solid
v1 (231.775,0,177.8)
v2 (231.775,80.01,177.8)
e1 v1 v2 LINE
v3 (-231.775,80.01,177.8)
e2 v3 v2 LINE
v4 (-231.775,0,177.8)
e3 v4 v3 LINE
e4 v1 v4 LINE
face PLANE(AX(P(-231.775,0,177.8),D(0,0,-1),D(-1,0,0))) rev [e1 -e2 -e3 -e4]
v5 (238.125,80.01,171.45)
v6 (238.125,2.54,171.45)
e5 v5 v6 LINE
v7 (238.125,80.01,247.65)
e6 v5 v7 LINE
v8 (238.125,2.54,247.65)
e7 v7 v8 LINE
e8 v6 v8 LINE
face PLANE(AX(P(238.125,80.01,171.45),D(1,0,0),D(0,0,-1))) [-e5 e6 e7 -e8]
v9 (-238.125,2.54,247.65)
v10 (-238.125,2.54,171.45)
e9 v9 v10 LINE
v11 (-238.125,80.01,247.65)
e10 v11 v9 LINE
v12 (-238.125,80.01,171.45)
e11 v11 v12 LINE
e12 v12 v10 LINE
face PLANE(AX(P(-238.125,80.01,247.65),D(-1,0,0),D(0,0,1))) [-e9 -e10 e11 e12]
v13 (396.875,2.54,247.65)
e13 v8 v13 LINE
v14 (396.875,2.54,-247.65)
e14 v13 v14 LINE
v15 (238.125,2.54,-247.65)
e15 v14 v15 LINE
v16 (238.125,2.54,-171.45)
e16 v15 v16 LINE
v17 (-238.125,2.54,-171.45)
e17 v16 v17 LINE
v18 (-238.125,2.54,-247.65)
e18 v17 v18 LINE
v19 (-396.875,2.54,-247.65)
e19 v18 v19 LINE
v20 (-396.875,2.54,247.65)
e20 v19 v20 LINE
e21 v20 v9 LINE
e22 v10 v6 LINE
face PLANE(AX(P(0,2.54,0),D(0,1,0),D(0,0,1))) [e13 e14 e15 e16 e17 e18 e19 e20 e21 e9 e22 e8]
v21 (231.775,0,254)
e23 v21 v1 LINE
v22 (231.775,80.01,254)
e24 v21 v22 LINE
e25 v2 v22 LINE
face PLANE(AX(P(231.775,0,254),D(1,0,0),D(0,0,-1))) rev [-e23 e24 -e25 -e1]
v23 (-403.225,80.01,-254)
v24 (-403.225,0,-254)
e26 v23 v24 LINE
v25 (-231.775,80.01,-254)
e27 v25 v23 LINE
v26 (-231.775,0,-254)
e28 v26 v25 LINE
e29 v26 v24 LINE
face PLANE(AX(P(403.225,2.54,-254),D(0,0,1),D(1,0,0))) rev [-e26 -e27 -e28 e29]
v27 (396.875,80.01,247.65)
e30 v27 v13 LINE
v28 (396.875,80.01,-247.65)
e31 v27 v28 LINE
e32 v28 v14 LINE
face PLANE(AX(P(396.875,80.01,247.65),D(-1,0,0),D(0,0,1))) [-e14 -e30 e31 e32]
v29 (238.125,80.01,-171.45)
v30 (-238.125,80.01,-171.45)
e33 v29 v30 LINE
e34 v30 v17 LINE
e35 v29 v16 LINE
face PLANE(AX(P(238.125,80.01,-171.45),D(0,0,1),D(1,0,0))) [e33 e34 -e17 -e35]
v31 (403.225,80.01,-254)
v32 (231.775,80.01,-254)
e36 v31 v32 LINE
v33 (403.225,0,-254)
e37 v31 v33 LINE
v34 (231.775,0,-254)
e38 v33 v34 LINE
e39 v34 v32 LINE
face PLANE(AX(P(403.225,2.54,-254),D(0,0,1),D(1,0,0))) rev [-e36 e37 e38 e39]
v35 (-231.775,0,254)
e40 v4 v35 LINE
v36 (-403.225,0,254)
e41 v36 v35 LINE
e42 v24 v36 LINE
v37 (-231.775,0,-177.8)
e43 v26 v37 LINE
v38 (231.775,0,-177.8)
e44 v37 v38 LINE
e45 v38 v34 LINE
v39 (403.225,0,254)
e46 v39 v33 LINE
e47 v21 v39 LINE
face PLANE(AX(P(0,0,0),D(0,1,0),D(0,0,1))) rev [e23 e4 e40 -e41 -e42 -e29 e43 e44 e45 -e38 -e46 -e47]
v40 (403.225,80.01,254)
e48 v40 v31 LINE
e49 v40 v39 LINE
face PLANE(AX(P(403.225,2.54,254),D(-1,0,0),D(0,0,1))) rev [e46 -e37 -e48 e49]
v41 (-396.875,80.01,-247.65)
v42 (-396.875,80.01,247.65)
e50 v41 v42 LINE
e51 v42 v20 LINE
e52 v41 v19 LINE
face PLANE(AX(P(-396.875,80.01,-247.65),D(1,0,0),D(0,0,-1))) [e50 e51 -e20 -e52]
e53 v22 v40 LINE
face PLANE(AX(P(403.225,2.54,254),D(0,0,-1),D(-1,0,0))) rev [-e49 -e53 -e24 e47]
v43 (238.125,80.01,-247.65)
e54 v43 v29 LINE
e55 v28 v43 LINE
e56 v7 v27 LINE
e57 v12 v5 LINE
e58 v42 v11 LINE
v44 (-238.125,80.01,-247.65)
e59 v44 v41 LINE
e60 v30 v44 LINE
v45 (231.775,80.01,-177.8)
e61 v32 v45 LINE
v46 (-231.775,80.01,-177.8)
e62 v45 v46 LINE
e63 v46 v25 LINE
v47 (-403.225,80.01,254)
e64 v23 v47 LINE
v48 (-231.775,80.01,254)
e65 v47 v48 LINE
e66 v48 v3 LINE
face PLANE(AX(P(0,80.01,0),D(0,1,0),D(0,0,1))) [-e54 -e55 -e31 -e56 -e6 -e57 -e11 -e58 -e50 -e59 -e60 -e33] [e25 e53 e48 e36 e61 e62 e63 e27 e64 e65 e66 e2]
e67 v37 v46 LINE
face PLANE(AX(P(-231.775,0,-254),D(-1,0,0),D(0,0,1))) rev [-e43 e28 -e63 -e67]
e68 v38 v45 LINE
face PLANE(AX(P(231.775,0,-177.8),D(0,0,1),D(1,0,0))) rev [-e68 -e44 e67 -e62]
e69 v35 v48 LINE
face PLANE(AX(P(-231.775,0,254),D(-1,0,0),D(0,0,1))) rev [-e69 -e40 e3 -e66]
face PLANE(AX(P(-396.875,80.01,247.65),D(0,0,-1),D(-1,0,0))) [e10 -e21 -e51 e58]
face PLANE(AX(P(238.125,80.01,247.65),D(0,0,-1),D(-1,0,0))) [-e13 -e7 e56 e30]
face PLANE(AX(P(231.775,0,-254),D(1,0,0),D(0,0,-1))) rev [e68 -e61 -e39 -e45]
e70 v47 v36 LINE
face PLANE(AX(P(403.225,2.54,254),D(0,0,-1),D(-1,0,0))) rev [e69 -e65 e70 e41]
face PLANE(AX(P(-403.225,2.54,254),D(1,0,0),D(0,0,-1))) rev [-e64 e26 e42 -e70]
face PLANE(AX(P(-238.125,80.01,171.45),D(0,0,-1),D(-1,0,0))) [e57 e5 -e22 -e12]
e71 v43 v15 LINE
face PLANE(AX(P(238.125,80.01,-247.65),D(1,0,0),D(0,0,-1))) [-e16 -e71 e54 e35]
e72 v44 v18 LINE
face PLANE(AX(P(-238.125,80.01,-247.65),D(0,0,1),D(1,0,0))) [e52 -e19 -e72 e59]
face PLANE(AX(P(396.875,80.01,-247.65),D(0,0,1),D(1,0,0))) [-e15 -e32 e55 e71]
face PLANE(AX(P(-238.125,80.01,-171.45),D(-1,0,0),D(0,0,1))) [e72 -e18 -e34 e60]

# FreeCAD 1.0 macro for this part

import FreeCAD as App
import Part
import Sketcher

V = App.Vector
Q = App.Units.Quantity


def add_polygon(sketch, points):
    """Adds a closed chain of lines whose ends are joined by coincident constraints."""
    first, n = sketch.GeometryCount, len(points)
    for a, b in zip(points, points[1:] + points[:1]):
        sketch.addGeometry(Part.LineSegment(App.Vector(*a, 0), App.Vector(*b, 0)), False)
    for i in range(n):
        sketch.addConstraint(Sketcher.Constraint("Coincident", first + i, 2, first + (i + 1) % n, 1))

doc = App.newDocument("Part")
body = doc.addObject("PartDesign::Body", "Body")

# Sketch on XZ plane
sketch1 = doc.addObject("Sketcher::SketchObject", "Sketch")
body.addObject(sketch1)
sketch1.AttachmentSupport = (doc.XZ_Plane, [""])
sketch1.MapMode = "FlatFace"
add_polygon(sketch1, [(-403, -254), (-403, 254), (403, 254), (403, -254)])  # lines 0-3
sketch1.addConstraint([
    Sketcher.Constraint("Vertical", 0),
    Sketcher.Constraint("Horizontal", 1),
    Sketcher.Constraint("Vertical", 2),
    Sketcher.Constraint("Horizontal", 3),
    Sketcher.Constraint("Symmetric", 0, 2, 2, 2, -1, 1),
    Sketcher.Constraint("DistanceY", 0, 1, 0, 2, Q("20 in")),
    Sketcher.Constraint("DistanceX", 1, 1, 1, 2, Q("31.75 in")),
])
pad1 = doc.addObject("PartDesign::Pad", "Pad")
body.addObject(pad1)
pad1.Profile = sketch1
pad1.Length = Q("0.1 in")
pad1.Reversed = True

# Sketch on XZ plane
sketch2 = doc.addObject("Sketcher::SketchObject", "Sketch001")
body.addObject(sketch2)
sketch2.AttachmentSupport = (doc.XZ_Plane, [""])
sketch2.MapMode = "FlatFace"
sketch2.AttachmentOffset = App.Placement(V(0, 0, -0.1 * 25.4), App.Rotation())
add_polygon(sketch2, [(-232, 178), (-232, 254), (232, 254), (232, 178)])  # lines 0-3
add_polygon(sketch2, [(-232, -254), (-232, -178), (232, -178), (232, -254)])  # lines 4-7
sketch2.addConstraint([
    Sketcher.Constraint("Vertical", 0),
    Sketcher.Constraint("Horizontal", 1),
    Sketcher.Constraint("Vertical", 2),
    Sketcher.Constraint("Horizontal", 3),
    Sketcher.Constraint("Vertical", 4),
    Sketcher.Constraint("Horizontal", 5),
    Sketcher.Constraint("Vertical", 6),
    Sketcher.Constraint("Horizontal", 7),
    Sketcher.Constraint("Symmetric", 2, 2, 4, 2, -1, 1),
    Sketcher.Constraint("Symmetric", 0, 2, 6, 2, -1, 1),
    Sketcher.Constraint("Vertical", 3, 2, 4, 2),
    Sketcher.Constraint("DistanceY", 0, 1, 0, 2, Q("3 in")),
    Sketcher.Constraint("DistanceY", -1, 1, 0, 2, Q("10 in")),
    Sketcher.Constraint("DistanceX", 1, 1, 1, 2, Q("18.25 in")),
])
pocket1 = doc.addObject("PartDesign::Pocket", "Pocket")
body.addObject(pocket1)
pocket1.Profile = sketch2
pocket1.Length = Q("0.1 in")
pocket1.Reversed = True

# Sketch on XZ plane
sketch3 = doc.addObject("Sketcher::SketchObject", "Sketch002")
body.addObject(sketch3)
sketch3.AttachmentSupport = (doc.XZ_Plane, [""])
sketch3.MapMode = "FlatFace"
sketch3.AttachmentOffset = App.Placement(V(0, 0, -0.1 * 25.4), App.Rotation())
add_polygon(sketch3, [(-232, 254), (-232, 178), (232, 178), (232, 254), (403, 254), (403, -254), (232, -254), (232, -178), (-232, -178), (-232, -254), (-403, -254), (-403, 254)])  # lines 0-11
add_polygon(sketch3, [(-238, -171), (238, -171), (238, -248), (397, -248), (397, 248), (238, 248), (238, 171), (-238, 171), (-238, 248), (-397, 248), (-397, -248), (-238, -248)])  # lines 12-23
sketch3.addConstraint([
    Sketcher.Constraint("Vertical", 0),
    Sketcher.Constraint("Horizontal", 1),
    Sketcher.Constraint("Vertical", 2),
    Sketcher.Constraint("Horizontal", 3),
    Sketcher.Constraint("Vertical", 4),
    Sketcher.Constraint("Horizontal", 5),
    Sketcher.Constraint("Vertical", 6),
    Sketcher.Constraint("Horizontal", 7),
    Sketcher.Constraint("Vertical", 8),
    Sketcher.Constraint("Horizontal", 9),
    Sketcher.Constraint("Vertical", 10),
    Sketcher.Constraint("Horizontal", 11),
    Sketcher.Constraint("Horizontal", 12),
    Sketcher.Constraint("Vertical", 13),
    Sketcher.Constraint("Horizontal", 14),
    Sketcher.Constraint("Vertical", 15),
    Sketcher.Constraint("Horizontal", 16),
    Sketcher.Constraint("Vertical", 17),
    Sketcher.Constraint("Horizontal", 18),
    Sketcher.Constraint("Vertical", 19),
    Sketcher.Constraint("Horizontal", 20),
    Sketcher.Constraint("Vertical", 21),
    Sketcher.Constraint("Horizontal", 22),
    Sketcher.Constraint("Vertical", 23),
    Sketcher.Constraint("Symmetric", 0, 2, 6, 2, -1, 1),
    Sketcher.Constraint("Symmetric", 2, 2, 8, 2, -1, 1),
    Sketcher.Constraint("Symmetric", 4, 2, 10, 2, -1, 1),
    Sketcher.Constraint("Symmetric", 12, 2, 18, 2, -1, 1),
    Sketcher.Constraint("Symmetric", 14, 2, 20, 2, -1, 1),
    Sketcher.Constraint("Symmetric", 16, 2, 22, 2, -1, 1),
    Sketcher.Constraint("Symmetric", 5, 2, 8, 2, -2),
    Sketcher.Constraint("Symmetric", 16, 2, 19, 2, -2),
    Sketcher.Constraint("Equal", 8, 13),
    Sketcher.Constraint("DistanceY", 0, 2, 0, 1, Q("3 in")),
    Sketcher.Constraint("DistanceY", 4, 2, 4, 1, Q("20 in")),
    Sketcher.Constraint("DistanceY", 15, 1, 15, 2, Q("19.5 in")),
    Sketcher.Constraint("DistanceX", 0, 2, 3, 2, Q("25 in")),
    Sketcher.Constraint("DistanceX", 1, 1, 1, 2, Q("18.25 in")),
    Sketcher.Constraint("DistanceX", 12, 1, 12, 2, Q("18.75 in")),
    Sketcher.Constraint("DistanceX", 14, 1, 14, 2, Q("6.25 in")),
])
pad2 = doc.addObject("PartDesign::Pad", "Pad001")
body.addObject(pad2)
pad2.Profile = sketch3
pad2.Length = Q("3.05 in")
pad2.Reversed = True

doc.recompute()
